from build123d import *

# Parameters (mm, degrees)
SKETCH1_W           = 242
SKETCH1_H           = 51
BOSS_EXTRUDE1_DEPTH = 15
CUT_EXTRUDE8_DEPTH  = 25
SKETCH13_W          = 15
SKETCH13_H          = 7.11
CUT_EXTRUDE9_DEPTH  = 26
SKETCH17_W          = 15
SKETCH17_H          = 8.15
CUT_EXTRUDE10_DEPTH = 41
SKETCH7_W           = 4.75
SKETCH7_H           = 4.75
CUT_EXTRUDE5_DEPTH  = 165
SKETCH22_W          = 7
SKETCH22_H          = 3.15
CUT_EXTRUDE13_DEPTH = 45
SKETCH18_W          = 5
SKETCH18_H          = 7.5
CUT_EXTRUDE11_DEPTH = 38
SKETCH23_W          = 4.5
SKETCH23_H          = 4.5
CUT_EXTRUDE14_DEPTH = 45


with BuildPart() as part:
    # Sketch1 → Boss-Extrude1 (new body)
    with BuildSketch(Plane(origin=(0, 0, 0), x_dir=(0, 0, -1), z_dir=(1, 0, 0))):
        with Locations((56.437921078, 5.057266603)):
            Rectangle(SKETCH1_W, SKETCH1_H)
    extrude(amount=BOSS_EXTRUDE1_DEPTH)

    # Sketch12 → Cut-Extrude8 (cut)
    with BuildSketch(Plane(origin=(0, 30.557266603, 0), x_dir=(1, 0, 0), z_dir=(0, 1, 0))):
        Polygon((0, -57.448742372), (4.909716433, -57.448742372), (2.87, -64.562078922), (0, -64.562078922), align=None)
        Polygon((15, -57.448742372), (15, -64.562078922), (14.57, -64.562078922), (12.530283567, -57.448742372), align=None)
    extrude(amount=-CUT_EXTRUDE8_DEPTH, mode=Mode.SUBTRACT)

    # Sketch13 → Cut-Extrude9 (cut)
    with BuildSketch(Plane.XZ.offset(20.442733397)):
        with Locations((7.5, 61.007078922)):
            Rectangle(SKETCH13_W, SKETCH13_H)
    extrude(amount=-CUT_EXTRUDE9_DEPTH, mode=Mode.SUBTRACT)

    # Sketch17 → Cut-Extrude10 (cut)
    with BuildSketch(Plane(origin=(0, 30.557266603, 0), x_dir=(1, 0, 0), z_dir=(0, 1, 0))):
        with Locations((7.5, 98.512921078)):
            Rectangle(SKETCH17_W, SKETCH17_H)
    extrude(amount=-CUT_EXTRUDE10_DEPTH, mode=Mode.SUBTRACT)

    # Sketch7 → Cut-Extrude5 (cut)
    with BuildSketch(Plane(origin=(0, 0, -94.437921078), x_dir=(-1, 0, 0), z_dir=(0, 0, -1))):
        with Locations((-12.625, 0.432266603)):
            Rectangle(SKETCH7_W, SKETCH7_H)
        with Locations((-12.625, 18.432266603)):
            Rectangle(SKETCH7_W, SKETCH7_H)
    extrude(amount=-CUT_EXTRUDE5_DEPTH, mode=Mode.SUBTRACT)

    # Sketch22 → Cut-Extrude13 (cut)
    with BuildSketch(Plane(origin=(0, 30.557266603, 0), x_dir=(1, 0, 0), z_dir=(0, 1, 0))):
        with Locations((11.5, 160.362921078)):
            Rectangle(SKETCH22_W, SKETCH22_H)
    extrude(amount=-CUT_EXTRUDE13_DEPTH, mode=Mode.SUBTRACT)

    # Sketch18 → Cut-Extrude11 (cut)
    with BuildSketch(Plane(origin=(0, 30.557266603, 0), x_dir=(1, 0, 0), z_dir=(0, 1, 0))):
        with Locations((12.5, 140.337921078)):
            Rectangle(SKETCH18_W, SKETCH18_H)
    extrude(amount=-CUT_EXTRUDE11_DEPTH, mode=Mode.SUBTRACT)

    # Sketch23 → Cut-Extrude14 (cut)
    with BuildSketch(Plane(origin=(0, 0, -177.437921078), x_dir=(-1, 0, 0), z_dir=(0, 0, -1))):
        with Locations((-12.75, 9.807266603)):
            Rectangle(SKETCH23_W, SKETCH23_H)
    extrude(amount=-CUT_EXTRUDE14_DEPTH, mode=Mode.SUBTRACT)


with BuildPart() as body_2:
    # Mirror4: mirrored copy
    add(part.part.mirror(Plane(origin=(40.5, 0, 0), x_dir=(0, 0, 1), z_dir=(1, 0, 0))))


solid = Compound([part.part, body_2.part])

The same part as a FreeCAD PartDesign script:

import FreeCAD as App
import Part
import Sketcher

V = App.Vector
Q = App.Units.Quantity


def add_polygon(sketch, points):
    """Adds a closed chain of lines whose ends are joined by coincident constraints."""
    first, n = sketch.GeometryCount, len(points)
    for a, b in zip(points, points[1:] + points[:1]):
        sketch.addGeometry(Part.LineSegment(App.Vector(*a, 0), App.Vector(*b, 0)), False)
    for i in range(n):
        sketch.addConstraint(Sketcher.Constraint("Coincident", first + i, 2, first + (i + 1) % n, 1))

doc = App.newDocument("Part")
body = doc.addObject("PartDesign::Body", "Body")

# Sketch on YZ plane
sketch1 = doc.addObject("Sketcher::SketchObject", "Sketch")
body.addObject(sketch1)
sketch1.AttachmentSupport = (doc.YZ_Plane, [""])
sketch1.MapMode = "FlatFace"
add_polygon(sketch1, [(31, 65), (-20, 65), (-20, -177), (31, -177)])  # lines 0-3
sketch1.addConstraint(Sketcher.Constraint("Horizontal", 0))
sketch1.addConstraint(Sketcher.Constraint("Vertical", 1))
sketch1.addConstraint(Sketcher.Constraint("Horizontal", 2))
sketch1.addConstraint(Sketcher.Constraint("Vertical", 3))
sketch1.addConstraint(Sketcher.Constraint("DistanceX", 0, 2, 0, 1, 51.0))
sketch1.addConstraint(Sketcher.Constraint("DistanceY", 1, 2, 1, 1, 242.0))
sketch1.addConstraint(Sketcher.Constraint("DistanceY", -1, 1, 0, 2, 64.562079))
sketch1.addConstraint(Sketcher.Constraint("DistanceX", 0, 2, -1, 1, 20.442733))
pad1 = doc.addObject("PartDesign::Pad", "Pad")
body.addObject(pad1)
pad1.Profile = sketch1
pad1.Length = 15

# Sketch on XZ plane
sketch2 = doc.addObject("Sketcher::SketchObject", "Sketch001")
body.addObject(sketch2)
sketch2.AttachmentSupport = (doc.XZ_Plane, [""])
sketch2.MapMode = "FlatFace"
sketch2.AttachmentOffset = App.Placement(V(0, 0, -30.557267), App.Rotation())
add_polygon(sketch2, [(4.91, 57.45), (0, 57.45), (0, 64.56), (2.87, 64.56)])  # lines 0-3
add_polygon(sketch2, [(15, 64.56), (15, 57.45), (12.53, 57.45), (14.57, 64.56)])  # lines 4-7
sketch2.addConstraint(Sketcher.Constraint("Horizontal", 0))
sketch2.addConstraint(Sketcher.Constraint("Vertical", 1))
sketch2.addConstraint(Sketcher.Constraint("Horizontal", 2))
sketch2.addConstraint(Sketcher.Constraint("Vertical", 4))
sketch2.addConstraint(Sketcher.Constraint("Horizontal", 5))
sketch2.addConstraint(Sketcher.Constraint("Horizontal", 7))
sketch2.addConstraint(Sketcher.Constraint("PointOnObject", 0, 2, -2))
sketch2.addConstraint(Sketcher.Constraint("Horizontal", 3, 2, 4, 2))
sketch2.addConstraint(Sketcher.Constraint("Horizontal", 2, 2, 6, 2))
sketch2.addConstraint(Sketcher.Constraint("Equal", 3, 6))
sketch2.addConstraint(Sketcher.Constraint("Angle", 3, Q("-74 deg")))
sketch2.addConstraint(Sketcher.Constraint("DistanceX", -1, 1, 4, 2, 15.0))
sketch2.addConstraint(Sketcher.Constraint("Distance", 3, 7.4))
sketch2.addConstraint(Sketcher.Constraint("DistanceX", 2, 1, 2, 2, 2.87))
sketch2.addConstraint(Sketcher.Constraint("DistanceX", 7, 1, 7, 2, 0.43))
sketch2.addConstraint(Sketcher.Constraint("DistanceY", -1, 1, 1, 2, 64.562079))
pocket1 = doc.addObject("PartDesign::Pocket", "Pocket")
body.addObject(pocket1)
pocket1.Profile = sketch2
pocket1.Length = 25
pocket1.Reversed = True

# Sketch on XZ plane
sketch3 = doc.addObject("Sketcher::SketchObject", "Sketch002")
body.addObject(sketch3)
sketch3.AttachmentSupport = (doc.XZ_Plane, [""])
sketch3.MapMode = "FlatFace"
sketch3.AttachmentOffset = App.Placement(V(0, 0, 20.442733), App.Rotation())
add_polygon(sketch3, [(0, 65), (0, 57), (15, 57), (15, 65)])  # lines 0-3
sketch3.addConstraint(Sketcher.Constraint("Vertical", 0))
sketch3.addConstraint(Sketcher.Constraint("Horizontal", 1))
sketch3.addConstraint(Sketcher.Constraint("Vertical", 2))
sketch3.addConstraint(Sketcher.Constraint("Horizontal", 3))
sketch3.addConstraint(Sketcher.Constraint("PointOnObject", 0, 2, -2))
sketch3.addConstraint(Sketcher.Constraint("DistanceX", 1, 1, 1, 2, 15.0))
sketch3.addConstraint(Sketcher.Constraint("DistanceY", 0, 2, 0, 1, 7.11))
sketch3.addConstraint(Sketcher.Constraint("DistanceY", -1, 1, 0, 2, 57.452079))
pocket2 = doc.addObject("PartDesign::Pocket", "Pocket001")
body.addObject(pocket2)
pocket2.Profile = sketch3
pocket2.Length = 26

# Sketch on XZ plane
sketch4 = doc.addObject("Sketcher::SketchObject", "Sketch003")
body.addObject(sketch4)
sketch4.AttachmentSupport = (doc.XZ_Plane, [""])
sketch4.MapMode = "FlatFace"
sketch4.AttachmentOffset = App.Placement(V(0, 0, -30.557267), App.Rotation())
add_polygon(sketch4, [(0, -103), (0, -94), (15, -94), (15, -103)])  # lines 0-3
sketch4.addConstraint(Sketcher.Constraint("Vertical", 0))
sketch4.addConstraint(Sketcher.Constraint("Horizontal", 1))
sketch4.addConstraint(Sketcher.Constraint("Vertical", 2))
sketch4.addConstraint(Sketcher.Constraint("Horizontal", 3))
sketch4.addConstraint(Sketcher.Constraint("PointOnObject", 0, 2, -2))
sketch4.addConstraint(Sketcher.Constraint("DistanceX", 1, 1, 1, 2, 15.0))
sketch4.addConstraint(Sketcher.Constraint("DistanceY", 0, 1, 0, 2, 8.15))
sketch4.addConstraint(Sketcher.Constraint("DistanceY", 0, 2, -1, 1, 94.437921))
pocket3 = doc.addObject("PartDesign::Pocket", "Pocket002")
body.addObject(pocket3)
pocket3.Profile = sketch4
pocket3.Length = 41
pocket3.Reversed = True

# Sketch on XY plane
sketch5 = doc.addObject("Sketcher::SketchObject", "Sketch004")
body.addObject(sketch5)
sketch5.AttachmentSupport = (doc.XY_Plane, [""])
sketch5.MapMode = "FlatFace"
sketch5.AttachmentOffset = App.Placement(V(0, 0, -94.437921), App.Rotation())
add_polygon(sketch5, [(15, 2.8), (15, -1.9), (10.2, -1.9), (10.2, 2.8)])  # lines 0-3
add_polygon(sketch5, [(15, 20.8), (15, 16.1), (10.2, 16.1), (10.2, 20.8)])  # lines 4-7
sketch5.addConstraint(Sketcher.Constraint("Vertical", 0))
sketch5.addConstraint(Sketcher.Constraint("Horizontal", 1))
sketch5.addConstraint(Sketcher.Constraint("Vertical", 2))
sketch5.addConstraint(Sketcher.Constraint("Horizontal", 3))
sketch5.addConstraint(Sketcher.Constraint("Vertical", 4))
sketch5.addConstraint(Sketcher.Constraint("Horizontal", 5))
sketch5.addConstraint(Sketcher.Constraint("Vertical", 6))
sketch5.addConstraint(Sketcher.Constraint("Horizontal", 7))
sketch5.addConstraint(Sketcher.Constraint("Vertical", 3, 2, 4, 2))
sketch5.addConstraint(Sketcher.Constraint("Vertical", 2, 2, 5, 2))
sketch5.addConstraint(Sketcher.Constraint("Equal", 7, 0))
sketch5.addConstraint(Sketcher.Constraint("Equal", 2, 4))
sketch5.addConstraint(Sketcher.Constraint("DistanceX", -1, 1, 0, 2, 15.0))
sketch5.addConstraint(Sketcher.Constraint("DistanceY", 0, 2, 4, 2, 18.0))
sketch5.addConstraint(Sketcher.Constraint("DistanceX", 1, 2, 1, 1, 4.75))
sketch5.addConstraint(Sketcher.Constraint("DistanceY", 0, 2, -1, 1, 1.942733))
pocket4 = doc.addObject("PartDesign::Pocket", "Pocket003")
body.addObject(pocket4)
pocket4.Profile = sketch5
pocket4.Length = 165
pocket4.Reversed = True

# Sketch on XZ plane
sketch6 = doc.addObject("Sketcher::SketchObject", "Sketch005")
body.addObject(sketch6)
sketch6.AttachmentSupport = (doc.XZ_Plane, [""])
sketch6.MapMode = "FlatFace"
sketch6.AttachmentOffset = App.Placement(V(0, 0, -30.557267), App.Rotation())
add_polygon(sketch6, [(8, -161.9), (8, -158.8), (15, -158.8), (15, -161.9)])  # lines 0-3
sketch6.addConstraint(Sketcher.Constraint("Vertical", 0))
sketch6.addConstraint(Sketcher.Constraint("Horizontal", 1))
sketch6.addConstraint(Sketcher.Constraint("Vertical", 2))
sketch6.addConstraint(Sketcher.Constraint("Horizontal", 3))
sketch6.addConstraint(Sketcher.Constraint("DistanceX", 1, 1, 1, 2, 7.0))
sketch6.addConstraint(Sketcher.Constraint("DistanceX", -1, 1, 0, 2, 8.0))
sketch6.addConstraint(Sketcher.Constraint("DistanceY", 0, 1, 0, 2, 3.15))
sketch6.addConstraint(Sketcher.Constraint("DistanceY", 0, 2, -1, 1, 158.787921))
pocket5 = doc.addObject("PartDesign::Pocket", "Pocket004")
body.addObject(pocket5)
pocket5.Profile = sketch6
pocket5.Length = 45
pocket5.Reversed = True

# Sketch on XZ plane
sketch7 = doc.addObject("Sketcher::SketchObject", "Sketch006")
body.addObject(sketch7)
sketch7.AttachmentSupport = (doc.XZ_Plane, [""])
sketch7.MapMode = "FlatFace"
sketch7.AttachmentOffset = App.Placement(V(0, 0, -30.557267), App.Rotation())
add_polygon(sketch7, [(10, -144), (10, -137), (15, -137), (15, -144)])  # lines 0-3
sketch7.addConstraint(Sketcher.Constraint("Vertical", 0))
sketch7.addConstraint(Sketcher.Constraint("Horizontal", 1))
sketch7.addConstraint(Sketcher.Constraint("Vertical", 2))
sketch7.addConstraint(Sketcher.Constraint("Horizontal", 3))
sketch7.addConstraint(Sketcher.Constraint("DistanceX", 1, 1, 1, 2, 5.0))
sketch7.addConstraint(Sketcher.Constraint("DistanceY", 0, 1, 0, 2, 7.5))
sketch7.addConstraint(Sketcher.Constraint("DistanceX", -1, 1, 0, 2, 10.0))
sketch7.addConstraint(Sketcher.Constraint("DistanceY", 0, 2, -1, 1, 136.587921))
pocket6 = doc.addObject("PartDesign::Pocket", "Pocket005")
body.addObject(pocket6)
pocket6.Profile = sketch7
pocket6.Length = 38
pocket6.Reversed = True

# Sketch on XY plane
sketch8 = doc.addObject("Sketcher::SketchObject", "Sketch007")
body.addObject(sketch8)
sketch8.AttachmentSupport = (doc.XY_Plane, [""])
sketch8.MapMode = "FlatFace"
sketch8.AttachmentOffset = App.Placement(V(0, 0, -177.437921), App.Rotation())
add_polygon(sketch8, [(15, 12.1), (15, 7.6), (10.5, 7.6), (10.5, 12.1)])  # lines 0-3
sketch8.addConstraint(Sketcher.Constraint("Vertical", 0))
sketch8.addConstraint(Sketcher.Constraint("Horizontal", 1))
sketch8.addConstraint(Sketcher.Constraint("Vertical", 2))
sketch8.addConstraint(Sketcher.Constraint("Horizontal", 3))
sketch8.addConstraint(Sketcher.Constraint("Equal", 3, 0))
sketch8.addConstraint(Sketcher.Constraint("DistanceX", 1, 2, 1, 1, 4.5))
sketch8.addConstraint(Sketcher.Constraint("DistanceX", -1, 1, 0, 2, 15.0))
sketch8.addConstraint(Sketcher.Constraint("DistanceY", -1, 1, 0, 2, 7.557267))
pocket7 = doc.addObject("PartDesign::Pocket", "Pocket006")
body.addObject(pocket7)
pocket7.Profile = sketch8
pocket7.Length = 45
pocket7.Reversed = True
body2 = doc.addObject("PartDesign::Body", "Body001")
doc.recompute()

mirroring = doc.addObject("Part::Mirroring", "Mirroring")
mirroring.Source = body
mirroring.Base = V(40.5, 0, 0)
mirroring.Normal = V(1, 0, 0)
body2.BaseFeature = mirroring
doc.recompute()
mirroring.Visibility = False

doc.recompute()
